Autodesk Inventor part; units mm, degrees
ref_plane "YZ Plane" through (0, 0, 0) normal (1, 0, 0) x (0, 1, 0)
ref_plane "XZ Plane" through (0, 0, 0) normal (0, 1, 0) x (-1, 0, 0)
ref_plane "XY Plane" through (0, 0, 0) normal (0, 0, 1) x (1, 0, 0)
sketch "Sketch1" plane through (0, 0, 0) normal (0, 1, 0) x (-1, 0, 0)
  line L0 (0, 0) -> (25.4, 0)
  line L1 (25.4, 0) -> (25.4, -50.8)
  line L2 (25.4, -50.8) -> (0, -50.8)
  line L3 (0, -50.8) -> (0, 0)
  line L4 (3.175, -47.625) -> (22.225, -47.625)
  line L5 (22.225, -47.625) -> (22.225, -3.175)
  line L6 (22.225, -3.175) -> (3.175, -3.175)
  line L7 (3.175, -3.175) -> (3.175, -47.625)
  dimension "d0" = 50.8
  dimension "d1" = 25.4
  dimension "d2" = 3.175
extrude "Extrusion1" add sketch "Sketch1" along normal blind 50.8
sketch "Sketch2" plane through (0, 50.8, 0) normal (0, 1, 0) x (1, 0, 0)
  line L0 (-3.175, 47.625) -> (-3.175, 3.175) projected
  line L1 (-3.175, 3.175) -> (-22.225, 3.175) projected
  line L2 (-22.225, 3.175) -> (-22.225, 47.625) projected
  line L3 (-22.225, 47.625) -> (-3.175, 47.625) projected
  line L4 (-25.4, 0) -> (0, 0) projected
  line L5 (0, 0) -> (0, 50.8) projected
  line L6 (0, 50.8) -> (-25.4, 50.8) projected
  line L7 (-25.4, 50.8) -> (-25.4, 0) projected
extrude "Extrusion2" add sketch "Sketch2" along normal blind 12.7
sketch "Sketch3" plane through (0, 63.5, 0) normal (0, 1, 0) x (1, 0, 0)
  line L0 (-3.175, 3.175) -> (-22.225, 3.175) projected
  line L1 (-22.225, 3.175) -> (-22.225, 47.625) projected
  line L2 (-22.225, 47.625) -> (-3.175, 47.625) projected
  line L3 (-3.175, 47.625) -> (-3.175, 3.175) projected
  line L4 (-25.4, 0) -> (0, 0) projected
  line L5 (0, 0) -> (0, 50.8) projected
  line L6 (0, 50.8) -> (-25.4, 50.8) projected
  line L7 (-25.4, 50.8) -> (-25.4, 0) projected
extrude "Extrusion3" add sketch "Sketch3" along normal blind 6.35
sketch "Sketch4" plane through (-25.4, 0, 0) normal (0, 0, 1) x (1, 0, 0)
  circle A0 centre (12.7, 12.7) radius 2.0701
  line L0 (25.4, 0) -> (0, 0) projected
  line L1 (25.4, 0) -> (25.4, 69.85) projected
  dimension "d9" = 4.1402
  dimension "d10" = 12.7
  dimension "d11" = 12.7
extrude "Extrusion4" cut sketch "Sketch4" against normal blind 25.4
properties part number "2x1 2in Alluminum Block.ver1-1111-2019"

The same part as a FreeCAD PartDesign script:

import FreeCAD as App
import Part
import Sketcher
Q = App.Units.Quantity


def add_polygon(sketch, points):
    """Adds a closed chain of lines whose ends are joined by coincident constraints."""
    first, n = sketch.GeometryCount, len(points)
    for a, b in zip(points, points[1:] + points[:1]):
        sketch.addGeometry(Part.LineSegment(App.Vector(*a, 0), App.Vector(*b, 0)), False)
    for i in range(n):
        sketch.addConstraint(Sketcher.Constraint("Coincident", first + i, 2, first + (i + 1) % n, 1))

doc = App.newDocument("Part")
body = doc.addObject("PartDesign::Body", "Body")

sketch1 = body.newObject("Sketcher::SketchObject", "Sketch")
sketch1.AttachmentSupport = (doc.getObject("XZ_Plane"), [""])
sketch1.MapMode = "FlatFace"
add_polygon(sketch1, [(-25.4, 0), (0, 0), (0, -50.8), (-25.4, -50.8)])
add_polygon(sketch1, [(-22.225, -47.625), (-3.175, -47.625), (-3.175, -3.175), (-22.225, -3.175)])
sketch1.addConstraint(Sketcher.Constraint("Horizontal", 0))
sketch1.addConstraint(Sketcher.Constraint("Vertical", 1))
sketch1.addConstraint(Sketcher.Constraint("Horizontal", 2))
sketch1.addConstraint(Sketcher.Constraint("Vertical", 3))
sketch1.addConstraint(Sketcher.Constraint("Horizontal", 4))
sketch1.addConstraint(Sketcher.Constraint("Vertical", 5))
sketch1.addConstraint(Sketcher.Constraint("Horizontal", 6))
sketch1.addConstraint(Sketcher.Constraint("Vertical", 7))
sketch1.addConstraint(Sketcher.Constraint("Coincident", 0, 2, -1, 1))
sketch1.addConstraint(Sketcher.Constraint("DistanceX", 0, 1, 0, 2, Q("1 in")))
sketch1.addConstraint(Sketcher.Constraint("DistanceY", 1, 2, 1, 1, Q("2 in")))
sketch1.addConstraint(Sketcher.Constraint("DistanceX", 4, 2, -1, 1, Q("0.125 in")))
sketch1.addConstraint(Sketcher.Constraint("DistanceY", 5, 2, -1, 1, Q("0.125 in")))
sketch1.addConstraint(Sketcher.Constraint("DistanceY", 1, 2, 4, 2, Q("0.125 in")))
sketch1.addConstraint(Sketcher.Constraint("DistanceX", 3, 2, 6, 2, Q("0.125 in")))
pad1 = body.newObject("PartDesign::Pad", "Pad")
pad1.Profile = sketch1
pad1.Length = Q("2 in")
pad1.Reversed = True

sketch2 = body.newObject("Sketcher::SketchObject", "Sketch001")
sketch2.AttachmentSupport = (doc.getObject("XZ_Plane"), [""])
sketch2.MapMode = "FlatFace"
sketch2.AttachmentOffset = App.Placement(App.Vector(0, 0, -2 * 25.4), App.Rotation())
add_polygon(sketch2, [(-25.4, -50.8), (-25.4, 0), (0, 0), (0, -50.8)])
add_polygon(sketch2, [(-22.225, -47.625), (-3.175, -47.625), (-3.175, -3.175), (-22.225, -3.175)])
sketch2.addConstraint(Sketcher.Constraint("Vertical", 0))
sketch2.addConstraint(Sketcher.Constraint("Horizontal", 1))
sketch2.addConstraint(Sketcher.Constraint("Vertical", 2))
sketch2.addConstraint(Sketcher.Constraint("Horizontal", 3))
sketch2.addConstraint(Sketcher.Constraint("Horizontal", 4))
sketch2.addConstraint(Sketcher.Constraint("Vertical", 5))
sketch2.addConstraint(Sketcher.Constraint("Horizontal", 6))
sketch2.addConstraint(Sketcher.Constraint("Vertical", 7))
sketch2.addConstraint(Sketcher.Constraint("Coincident", 1, 2, -1, 1))
sketch2.addConstraint(Sketcher.Constraint("DistanceX", 1, 1, 1, 2, Q("1 in")))
sketch2.addConstraint(Sketcher.Constraint("DistanceY", 0, 1, 0, 2, Q("2 in")))
sketch2.addConstraint(Sketcher.Constraint("DistanceX", 4, 1, 4, 2, Q("0.75 in")))
sketch2.addConstraint(Sketcher.Constraint("DistanceY", 5, 1, 5, 2, Q("1.75 in")))
sketch2.addConstraint(Sketcher.Constraint("DistanceX", 4, 2, -1, 1, Q("0.125 in")))
sketch2.addConstraint(Sketcher.Constraint("DistanceY", 4, 2, -1, 1, Q("1.875 in")))
pad2 = body.newObject("PartDesign::Pad", "Pad001")
pad2.Profile = sketch2
pad2.Length = Q("0.5 in")
pad2.Reversed = True

sketch3 = body.newObject("Sketcher::SketchObject", "Sketch002")
sketch3.AttachmentSupport = (doc.getObject("XZ_Plane"), [""])
sketch3.MapMode = "FlatFace"
sketch3.AttachmentOffset = App.Placement(App.Vector(0, 0, -2.5 * 25.4), App.Rotation())
add_polygon(sketch3, [(-25.4, -50.8), (-25.4, 0), (0, 0), (0, -50.8)])
add_polygon(sketch3, [(-3.175, -47.625), (-3.175, -3.175), (-22.225, -3.175), (-22.225, -47.625)])
sketch3.addConstraint(Sketcher.Constraint("Vertical", 0))
sketch3.addConstraint(Sketcher.Constraint("Horizontal", 1))
sketch3.addConstraint(Sketcher.Constraint("Vertical", 2))
sketch3.addConstraint(Sketcher.Constraint("Horizontal", 3))
sketch3.addConstraint(Sketcher.Constraint("Vertical", 4))
sketch3.addConstraint(Sketcher.Constraint("Horizontal", 5))
sketch3.addConstraint(Sketcher.Constraint("Vertical", 6))
sketch3.addConstraint(Sketcher.Constraint("Horizontal", 7))
sketch3.addConstraint(Sketcher.Constraint("Coincident", 1, 2, -1, 1))
sketch3.addConstraint(Sketcher.Constraint("DistanceX", 1, 1, 1, 2, Q("1 in")))
sketch3.addConstraint(Sketcher.Constraint("DistanceY", 0, 1, 0, 2, Q("2 in")))
sketch3.addConstraint(Sketcher.Constraint("DistanceX", 5, 2, 5, 1, Q("0.75 in")))
sketch3.addConstraint(Sketcher.Constraint("DistanceY", 4, 1, 4, 2, Q("1.75 in")))
sketch3.addConstraint(Sketcher.Constraint("DistanceX", 4, 2, -1, 1, Q("0.125 in")))
sketch3.addConstraint(Sketcher.Constraint("DistanceY", 4, 2, -1, 1, Q("0.125 in")))
pad3 = body.newObject("PartDesign::Pad", "Pad002")
pad3.Profile = sketch3
pad3.Length = Q("0.25 in")
pad3.Reversed = True

sketch4 = body.newObject("Sketcher::SketchObject", "Sketch003")
sketch4.AttachmentSupport = (doc.getObject("XY_Plane"), [""])
sketch4.MapMode = "FlatFace"
sketch4.addGeometry(Part.Circle(App.Vector(-12.7, 12.7, 0), App.Vector(0, 0, 1), 2.0701), False)
sketch4.addConstraint(Sketcher.Constraint("Diameter", 0, Q("0.163 in")))
sketch4.addConstraint(Sketcher.Constraint("DistanceX", 0, 3, -1, 1, Q("0.5 in")))
sketch4.addConstraint(Sketcher.Constraint("DistanceY", -1, 1, 0, 3, Q("0.5 in")))
pocket1 = body.newObject("PartDesign::Pocket", "Pocket")
pocket1.Profile = sketch4
pocket1.Length = Q("1 in")

doc.recompute()
